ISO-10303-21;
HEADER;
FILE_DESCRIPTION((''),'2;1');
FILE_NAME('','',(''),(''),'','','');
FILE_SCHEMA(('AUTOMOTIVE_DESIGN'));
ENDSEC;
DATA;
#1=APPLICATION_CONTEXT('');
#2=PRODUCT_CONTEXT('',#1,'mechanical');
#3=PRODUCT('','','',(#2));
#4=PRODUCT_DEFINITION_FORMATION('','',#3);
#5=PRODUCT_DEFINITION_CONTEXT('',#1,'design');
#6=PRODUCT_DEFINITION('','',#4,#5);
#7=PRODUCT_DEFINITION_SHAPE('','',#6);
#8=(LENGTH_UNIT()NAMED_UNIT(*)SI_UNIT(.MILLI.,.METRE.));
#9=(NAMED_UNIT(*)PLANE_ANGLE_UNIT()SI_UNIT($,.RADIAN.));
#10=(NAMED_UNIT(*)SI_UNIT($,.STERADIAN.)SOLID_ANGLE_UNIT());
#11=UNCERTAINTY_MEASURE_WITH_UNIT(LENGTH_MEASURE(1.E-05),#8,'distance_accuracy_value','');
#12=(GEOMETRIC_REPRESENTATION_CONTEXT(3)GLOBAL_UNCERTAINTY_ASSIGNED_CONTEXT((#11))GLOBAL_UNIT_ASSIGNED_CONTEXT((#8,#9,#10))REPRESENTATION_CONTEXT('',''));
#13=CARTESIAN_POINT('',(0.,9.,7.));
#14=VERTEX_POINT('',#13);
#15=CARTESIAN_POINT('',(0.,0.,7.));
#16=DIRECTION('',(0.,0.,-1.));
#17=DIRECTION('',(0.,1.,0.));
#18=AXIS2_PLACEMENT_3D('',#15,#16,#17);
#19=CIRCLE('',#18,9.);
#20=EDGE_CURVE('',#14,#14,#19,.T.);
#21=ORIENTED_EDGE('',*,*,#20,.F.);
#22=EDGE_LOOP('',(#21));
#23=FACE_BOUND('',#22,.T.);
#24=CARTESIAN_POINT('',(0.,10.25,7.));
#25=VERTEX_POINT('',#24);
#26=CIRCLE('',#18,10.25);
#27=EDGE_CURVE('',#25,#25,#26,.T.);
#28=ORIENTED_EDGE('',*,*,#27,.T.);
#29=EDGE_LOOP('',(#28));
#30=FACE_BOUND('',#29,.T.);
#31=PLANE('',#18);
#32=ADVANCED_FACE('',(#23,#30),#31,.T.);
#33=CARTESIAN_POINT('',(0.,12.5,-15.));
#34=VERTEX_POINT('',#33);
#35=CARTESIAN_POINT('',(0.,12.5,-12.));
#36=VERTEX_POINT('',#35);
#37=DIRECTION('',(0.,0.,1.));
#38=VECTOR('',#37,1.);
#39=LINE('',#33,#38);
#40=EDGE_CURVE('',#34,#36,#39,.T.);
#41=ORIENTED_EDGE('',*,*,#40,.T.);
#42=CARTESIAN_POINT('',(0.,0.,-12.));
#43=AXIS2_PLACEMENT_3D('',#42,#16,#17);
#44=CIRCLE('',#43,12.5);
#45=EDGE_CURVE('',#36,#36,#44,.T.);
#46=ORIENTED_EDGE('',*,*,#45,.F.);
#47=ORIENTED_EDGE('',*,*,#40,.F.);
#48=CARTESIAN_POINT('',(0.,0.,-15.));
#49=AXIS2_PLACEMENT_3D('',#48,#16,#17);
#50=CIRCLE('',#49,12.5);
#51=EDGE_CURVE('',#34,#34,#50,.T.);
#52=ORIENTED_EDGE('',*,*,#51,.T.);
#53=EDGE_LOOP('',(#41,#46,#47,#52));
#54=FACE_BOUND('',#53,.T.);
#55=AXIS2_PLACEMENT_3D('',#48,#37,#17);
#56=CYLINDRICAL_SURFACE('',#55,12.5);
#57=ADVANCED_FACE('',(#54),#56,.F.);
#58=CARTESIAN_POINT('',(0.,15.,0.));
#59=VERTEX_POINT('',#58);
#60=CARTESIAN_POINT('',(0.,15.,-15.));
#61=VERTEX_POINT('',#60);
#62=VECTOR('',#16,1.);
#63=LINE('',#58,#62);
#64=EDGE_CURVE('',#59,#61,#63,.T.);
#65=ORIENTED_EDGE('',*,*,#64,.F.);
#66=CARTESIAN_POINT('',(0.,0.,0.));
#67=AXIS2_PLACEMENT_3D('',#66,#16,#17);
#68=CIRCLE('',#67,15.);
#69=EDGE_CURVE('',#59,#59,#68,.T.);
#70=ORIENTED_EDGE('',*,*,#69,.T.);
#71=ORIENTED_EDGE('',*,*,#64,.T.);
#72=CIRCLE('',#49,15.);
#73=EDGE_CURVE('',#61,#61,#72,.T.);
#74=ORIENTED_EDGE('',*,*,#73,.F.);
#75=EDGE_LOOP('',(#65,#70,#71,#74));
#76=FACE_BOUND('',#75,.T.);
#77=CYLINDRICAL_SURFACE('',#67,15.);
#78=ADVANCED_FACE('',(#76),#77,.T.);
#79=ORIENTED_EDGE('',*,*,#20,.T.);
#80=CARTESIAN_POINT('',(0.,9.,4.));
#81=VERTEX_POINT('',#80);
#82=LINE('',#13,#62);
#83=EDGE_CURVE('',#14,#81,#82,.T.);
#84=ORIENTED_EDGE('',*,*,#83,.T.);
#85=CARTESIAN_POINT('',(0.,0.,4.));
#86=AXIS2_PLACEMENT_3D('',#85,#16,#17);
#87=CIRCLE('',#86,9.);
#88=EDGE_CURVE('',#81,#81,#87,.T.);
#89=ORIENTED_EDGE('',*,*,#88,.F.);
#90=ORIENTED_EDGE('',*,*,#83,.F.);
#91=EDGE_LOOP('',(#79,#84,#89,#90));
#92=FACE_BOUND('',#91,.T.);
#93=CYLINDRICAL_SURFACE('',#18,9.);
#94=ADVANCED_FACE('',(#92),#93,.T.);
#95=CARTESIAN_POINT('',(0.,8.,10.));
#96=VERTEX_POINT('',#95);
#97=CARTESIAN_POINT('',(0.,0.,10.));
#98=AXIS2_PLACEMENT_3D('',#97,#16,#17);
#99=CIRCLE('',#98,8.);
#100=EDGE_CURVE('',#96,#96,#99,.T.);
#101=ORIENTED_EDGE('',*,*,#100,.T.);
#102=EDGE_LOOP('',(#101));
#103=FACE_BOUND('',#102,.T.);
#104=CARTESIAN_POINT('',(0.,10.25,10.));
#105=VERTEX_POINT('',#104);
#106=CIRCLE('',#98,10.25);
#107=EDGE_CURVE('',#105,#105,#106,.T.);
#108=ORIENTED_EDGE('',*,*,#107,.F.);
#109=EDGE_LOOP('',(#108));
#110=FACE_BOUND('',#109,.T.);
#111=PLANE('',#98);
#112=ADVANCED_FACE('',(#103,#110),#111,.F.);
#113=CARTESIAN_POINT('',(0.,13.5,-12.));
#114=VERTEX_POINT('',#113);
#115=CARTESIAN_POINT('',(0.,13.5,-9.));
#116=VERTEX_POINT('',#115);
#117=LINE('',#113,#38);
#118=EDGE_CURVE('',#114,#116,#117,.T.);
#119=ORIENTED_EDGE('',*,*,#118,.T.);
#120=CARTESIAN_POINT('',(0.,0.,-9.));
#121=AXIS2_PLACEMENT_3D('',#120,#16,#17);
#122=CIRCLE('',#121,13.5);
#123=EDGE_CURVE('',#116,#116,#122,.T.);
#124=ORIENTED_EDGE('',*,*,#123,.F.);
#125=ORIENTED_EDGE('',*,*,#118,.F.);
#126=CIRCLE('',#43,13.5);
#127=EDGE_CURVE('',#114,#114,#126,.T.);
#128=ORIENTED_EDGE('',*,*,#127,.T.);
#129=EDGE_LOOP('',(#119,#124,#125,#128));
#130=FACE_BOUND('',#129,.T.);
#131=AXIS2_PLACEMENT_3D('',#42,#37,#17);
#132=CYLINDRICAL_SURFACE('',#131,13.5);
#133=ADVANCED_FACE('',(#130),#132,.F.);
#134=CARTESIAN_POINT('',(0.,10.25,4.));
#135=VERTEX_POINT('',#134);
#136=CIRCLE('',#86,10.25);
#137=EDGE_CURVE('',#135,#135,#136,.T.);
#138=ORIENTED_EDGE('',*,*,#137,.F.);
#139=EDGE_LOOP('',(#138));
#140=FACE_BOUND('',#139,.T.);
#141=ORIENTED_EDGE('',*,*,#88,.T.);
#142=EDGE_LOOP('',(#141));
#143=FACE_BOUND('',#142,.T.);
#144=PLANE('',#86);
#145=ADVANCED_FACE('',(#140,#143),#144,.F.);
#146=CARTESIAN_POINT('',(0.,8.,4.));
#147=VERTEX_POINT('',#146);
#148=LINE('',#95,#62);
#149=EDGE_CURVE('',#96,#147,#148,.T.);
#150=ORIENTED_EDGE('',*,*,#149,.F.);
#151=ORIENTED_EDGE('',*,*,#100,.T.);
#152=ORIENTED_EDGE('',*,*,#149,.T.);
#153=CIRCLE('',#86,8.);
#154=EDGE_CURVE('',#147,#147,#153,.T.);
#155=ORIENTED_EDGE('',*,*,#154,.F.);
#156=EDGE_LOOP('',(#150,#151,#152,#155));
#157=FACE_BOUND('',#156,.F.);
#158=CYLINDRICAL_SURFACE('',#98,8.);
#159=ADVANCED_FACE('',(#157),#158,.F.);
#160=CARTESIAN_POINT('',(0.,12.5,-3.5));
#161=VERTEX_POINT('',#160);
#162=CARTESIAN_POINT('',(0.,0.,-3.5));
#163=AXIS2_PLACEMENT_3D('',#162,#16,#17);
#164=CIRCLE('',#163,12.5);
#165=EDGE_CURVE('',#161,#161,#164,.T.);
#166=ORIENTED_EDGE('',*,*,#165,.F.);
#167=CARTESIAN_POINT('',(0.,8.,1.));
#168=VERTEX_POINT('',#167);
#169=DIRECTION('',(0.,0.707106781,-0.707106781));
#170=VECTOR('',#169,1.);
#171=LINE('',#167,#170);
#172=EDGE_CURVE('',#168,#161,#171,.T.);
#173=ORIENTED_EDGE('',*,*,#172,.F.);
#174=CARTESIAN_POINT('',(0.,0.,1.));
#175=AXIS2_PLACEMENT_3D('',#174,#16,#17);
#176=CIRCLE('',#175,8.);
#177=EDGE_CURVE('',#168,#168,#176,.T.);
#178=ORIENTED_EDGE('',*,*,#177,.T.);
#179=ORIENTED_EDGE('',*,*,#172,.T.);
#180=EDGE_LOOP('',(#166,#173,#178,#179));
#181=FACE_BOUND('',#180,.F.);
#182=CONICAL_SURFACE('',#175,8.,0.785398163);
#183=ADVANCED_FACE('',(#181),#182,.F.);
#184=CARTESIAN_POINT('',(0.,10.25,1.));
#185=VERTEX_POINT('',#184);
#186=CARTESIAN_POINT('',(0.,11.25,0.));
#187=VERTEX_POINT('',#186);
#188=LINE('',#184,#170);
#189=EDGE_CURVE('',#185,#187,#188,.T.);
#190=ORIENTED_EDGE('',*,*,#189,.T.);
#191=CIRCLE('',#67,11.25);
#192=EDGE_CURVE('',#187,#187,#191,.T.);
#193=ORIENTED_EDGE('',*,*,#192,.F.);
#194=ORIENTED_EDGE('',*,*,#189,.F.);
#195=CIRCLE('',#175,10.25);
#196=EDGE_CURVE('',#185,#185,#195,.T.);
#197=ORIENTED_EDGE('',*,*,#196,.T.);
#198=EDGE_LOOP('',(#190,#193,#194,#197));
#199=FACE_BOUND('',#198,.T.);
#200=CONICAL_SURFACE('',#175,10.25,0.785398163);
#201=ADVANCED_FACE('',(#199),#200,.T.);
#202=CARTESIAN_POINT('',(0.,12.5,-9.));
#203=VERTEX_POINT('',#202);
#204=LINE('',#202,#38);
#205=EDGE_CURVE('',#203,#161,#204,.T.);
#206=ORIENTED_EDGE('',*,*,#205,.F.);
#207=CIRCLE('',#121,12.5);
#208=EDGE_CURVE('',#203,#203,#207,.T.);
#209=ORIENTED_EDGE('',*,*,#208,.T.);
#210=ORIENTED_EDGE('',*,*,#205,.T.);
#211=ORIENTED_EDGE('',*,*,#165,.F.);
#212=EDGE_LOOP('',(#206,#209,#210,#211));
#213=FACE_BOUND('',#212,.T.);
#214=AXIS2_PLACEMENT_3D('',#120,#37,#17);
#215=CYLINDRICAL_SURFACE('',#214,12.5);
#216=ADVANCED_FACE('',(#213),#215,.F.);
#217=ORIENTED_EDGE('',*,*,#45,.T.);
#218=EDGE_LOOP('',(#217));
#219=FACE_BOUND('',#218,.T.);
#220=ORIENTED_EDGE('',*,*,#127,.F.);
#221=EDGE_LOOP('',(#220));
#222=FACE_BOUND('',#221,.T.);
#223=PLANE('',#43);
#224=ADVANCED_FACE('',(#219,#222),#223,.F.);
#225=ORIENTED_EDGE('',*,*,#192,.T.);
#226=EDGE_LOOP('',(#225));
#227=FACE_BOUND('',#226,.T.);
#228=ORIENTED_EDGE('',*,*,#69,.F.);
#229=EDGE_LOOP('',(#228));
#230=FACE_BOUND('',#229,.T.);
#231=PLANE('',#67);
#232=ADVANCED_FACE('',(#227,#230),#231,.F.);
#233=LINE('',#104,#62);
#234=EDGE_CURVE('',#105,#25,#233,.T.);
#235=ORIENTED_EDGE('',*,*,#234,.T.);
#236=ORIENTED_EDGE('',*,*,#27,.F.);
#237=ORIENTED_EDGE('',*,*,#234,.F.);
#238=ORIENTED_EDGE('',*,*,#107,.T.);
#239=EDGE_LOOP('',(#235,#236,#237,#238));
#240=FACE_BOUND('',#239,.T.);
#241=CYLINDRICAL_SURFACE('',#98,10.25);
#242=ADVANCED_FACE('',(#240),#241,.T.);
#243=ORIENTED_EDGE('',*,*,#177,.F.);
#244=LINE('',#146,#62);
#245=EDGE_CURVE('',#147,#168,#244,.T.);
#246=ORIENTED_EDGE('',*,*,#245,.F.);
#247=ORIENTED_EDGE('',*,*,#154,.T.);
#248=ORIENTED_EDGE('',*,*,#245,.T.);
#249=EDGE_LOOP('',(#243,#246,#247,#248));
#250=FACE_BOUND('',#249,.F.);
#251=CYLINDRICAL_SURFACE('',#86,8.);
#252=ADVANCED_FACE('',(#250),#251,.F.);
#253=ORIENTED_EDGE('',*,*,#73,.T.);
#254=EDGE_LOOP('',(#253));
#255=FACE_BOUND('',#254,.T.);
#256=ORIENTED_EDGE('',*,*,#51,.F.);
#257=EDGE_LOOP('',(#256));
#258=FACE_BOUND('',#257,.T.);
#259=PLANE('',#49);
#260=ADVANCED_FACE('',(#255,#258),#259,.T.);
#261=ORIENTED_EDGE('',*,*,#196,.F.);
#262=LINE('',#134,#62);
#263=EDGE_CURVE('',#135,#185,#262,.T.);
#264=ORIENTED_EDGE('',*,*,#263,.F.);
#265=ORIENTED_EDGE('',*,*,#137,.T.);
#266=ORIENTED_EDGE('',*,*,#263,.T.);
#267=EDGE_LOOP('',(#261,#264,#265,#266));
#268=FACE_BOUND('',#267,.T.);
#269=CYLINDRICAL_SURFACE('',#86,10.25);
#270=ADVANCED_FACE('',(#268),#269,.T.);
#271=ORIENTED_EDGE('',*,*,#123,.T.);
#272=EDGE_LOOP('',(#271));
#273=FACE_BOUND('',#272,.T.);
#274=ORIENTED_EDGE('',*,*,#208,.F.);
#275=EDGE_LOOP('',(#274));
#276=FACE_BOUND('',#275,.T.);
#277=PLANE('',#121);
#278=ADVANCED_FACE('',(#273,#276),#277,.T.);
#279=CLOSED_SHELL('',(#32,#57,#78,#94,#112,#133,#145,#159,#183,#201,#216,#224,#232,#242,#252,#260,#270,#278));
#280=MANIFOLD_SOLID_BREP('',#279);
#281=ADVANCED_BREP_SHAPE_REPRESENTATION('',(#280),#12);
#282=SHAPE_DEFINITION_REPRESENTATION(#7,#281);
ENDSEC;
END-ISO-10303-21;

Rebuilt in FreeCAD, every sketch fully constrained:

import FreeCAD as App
import Part
import Sketcher
Q = App.Units.Quantity


def add_polygon(sketch, points):
    """Adds a closed chain of lines whose ends are joined by coincident constraints."""
    first, n = sketch.GeometryCount, len(points)
    for a, b in zip(points, points[1:] + points[:1]):
        sketch.addGeometry(Part.LineSegment(App.Vector(*a, 0), App.Vector(*b, 0)), False)
    for i in range(n):
        sketch.addConstraint(Sketcher.Constraint("Coincident", first + i, 2, first + (i + 1) % n, 1))

doc = App.newDocument("Part")
body = doc.addObject("PartDesign::Body", "Body")

# Sketch on YZ plane
sketch1 = doc.addObject("Sketcher::SketchObject", "Sketch")
body.addObject(sketch1)
sketch1.AttachmentSupport = (doc.YZ_Plane, [""])
sketch1.MapMode = "FlatFace"
add_polygon(sketch1, [(10.2, 10), (8, 10), (8, 1), (12.5, -3.5), (12.5, -9), (13.5, -9), (13.5, -12), (12.5, -12), (12.5, -15), (15, -15), (15, 0), (11.2, 0), (10.2, 1), (10.2, 4), (9, 4), (9, 7), (10.2, 7)])  # lines 0-16
sketch1.addConstraint([
    Sketcher.Constraint("Horizontal", 0),
    Sketcher.Constraint("Vertical", 1),
    Sketcher.Constraint("Vertical", 3),
    Sketcher.Constraint("Horizontal", 4),
    Sketcher.Constraint("Vertical", 5),
    Sketcher.Constraint("Horizontal", 6),
    Sketcher.Constraint("Vertical", 7),
    Sketcher.Constraint("Horizontal", 8),
    Sketcher.Constraint("Vertical", 9),
    Sketcher.Constraint("Horizontal", 10),
    Sketcher.Constraint("Vertical", 12),
    Sketcher.Constraint("Horizontal", 13),
    Sketcher.Constraint("Vertical", 14),
    Sketcher.Constraint("Horizontal", 15),
    Sketcher.Constraint("Vertical", 16),
    Sketcher.Constraint("PointOnObject", 9, 2, -1),
    Sketcher.Constraint("Parallel", 2, 11),
    Sketcher.Constraint("Horizontal", 1, 2, 11, 2),
    Sketcher.Constraint("Vertical", 3, 2, 6, 2),
    Sketcher.Constraint("Vertical", 12, 2, 15, 2),
    Sketcher.Constraint("Equal", 5, 7),
    Sketcher.Constraint("Equal", 7, 12),
    Sketcher.Constraint("Equal", 12, 14),
    Sketcher.Constraint("Equal", 14, 16),
    Sketcher.Constraint("DistanceY", 5, 2, 5, 1, Q("3 mm")),
    Sketcher.Constraint("DistanceY", 9, 1, 9, 2, Q("15 mm")),
    Sketcher.Constraint("Angle", 2, Q("-45 deg")),
    Sketcher.Constraint("DistanceX", -1, 1, 0, 2, Q("8 mm")),
    Sketcher.Constraint("DistanceY", -1, 1, 0, 2, Q("10 mm")),
    Sketcher.Constraint("DistanceX", -1, 1, 8, 2, Q("15 mm")),
    Sketcher.Constraint("DistanceX", 0, 2, 0, 1, Q("2.25 mm")),
    Sketcher.Constraint("DistanceX", 13, 2, 13, 1, Q("1.25 mm")),
    Sketcher.Constraint("DistanceX", -1, 1, 2, 2, Q("12.5 mm")),
    Sketcher.Constraint("DistanceX", 4, 1, 4, 2, Q("1 mm")),
])
revolution = doc.addObject("PartDesign::Revolution", "Revolution")
body.addObject(revolution)
revolution.Profile = sketch1
revolution.ReferenceAxis = (sketch1, ["V_Axis"])
revolution.Angle = 360

doc.recompute()
